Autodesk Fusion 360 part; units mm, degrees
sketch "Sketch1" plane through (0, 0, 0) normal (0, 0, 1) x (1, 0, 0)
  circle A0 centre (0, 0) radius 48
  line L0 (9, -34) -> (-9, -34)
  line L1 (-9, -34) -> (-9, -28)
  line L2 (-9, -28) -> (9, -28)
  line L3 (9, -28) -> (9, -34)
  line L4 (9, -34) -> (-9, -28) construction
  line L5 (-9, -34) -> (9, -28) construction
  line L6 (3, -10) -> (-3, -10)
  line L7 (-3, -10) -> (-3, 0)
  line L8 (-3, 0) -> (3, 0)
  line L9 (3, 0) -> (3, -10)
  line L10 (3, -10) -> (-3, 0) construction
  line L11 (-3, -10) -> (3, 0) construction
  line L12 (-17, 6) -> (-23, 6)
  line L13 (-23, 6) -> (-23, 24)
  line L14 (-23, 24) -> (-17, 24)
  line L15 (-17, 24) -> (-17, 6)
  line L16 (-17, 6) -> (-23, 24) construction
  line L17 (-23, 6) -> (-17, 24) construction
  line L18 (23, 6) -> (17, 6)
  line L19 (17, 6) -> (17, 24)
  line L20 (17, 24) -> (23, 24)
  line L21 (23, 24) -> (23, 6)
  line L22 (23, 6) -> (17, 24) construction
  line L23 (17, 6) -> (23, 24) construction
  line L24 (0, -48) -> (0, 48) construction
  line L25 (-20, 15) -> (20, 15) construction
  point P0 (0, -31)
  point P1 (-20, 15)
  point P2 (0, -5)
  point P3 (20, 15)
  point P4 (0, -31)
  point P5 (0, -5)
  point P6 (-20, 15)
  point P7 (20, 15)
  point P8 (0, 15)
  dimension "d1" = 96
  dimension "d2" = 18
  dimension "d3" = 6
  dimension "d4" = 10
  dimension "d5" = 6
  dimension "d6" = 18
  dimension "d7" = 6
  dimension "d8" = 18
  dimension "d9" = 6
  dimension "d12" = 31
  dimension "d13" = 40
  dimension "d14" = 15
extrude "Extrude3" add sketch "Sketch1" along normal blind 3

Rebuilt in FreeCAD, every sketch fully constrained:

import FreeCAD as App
import Part
import Sketcher
Q = App.Units.Quantity


def add_polygon(sketch, points):
    """Adds a closed chain of lines whose ends are joined by coincident constraints."""
    first, n = sketch.GeometryCount, len(points)
    for a, b in zip(points, points[1:] + points[:1]):
        sketch.addGeometry(Part.LineSegment(App.Vector(*a, 0), App.Vector(*b, 0)), False)
    for i in range(n):
        sketch.addConstraint(Sketcher.Constraint("Coincident", first + i, 2, first + (i + 1) % n, 1))

doc = App.newDocument("Part")
body = doc.addObject("PartDesign::Body", "Body")

sketch1 = body.newObject("Sketcher::SketchObject", "Sketch")
sketch1.AttachmentSupport = (doc.getObject("XY_Plane"), [""])
sketch1.MapMode = "FlatFace"
sketch1.addGeometry(Part.Circle(App.Vector(0, 0, 0), App.Vector(0, 0, 1), 48), False)
add_polygon(sketch1, [(9, -28), (9, -34), (-9, -34), (-9, -28)])
add_polygon(sketch1, [(3, 0), (3, -10), (-3, -10), (-3, 0)])
add_polygon(sketch1, [(-17, 24), (-17, 6), (-23, 6), (-23, 24)])
add_polygon(sketch1, [(23, 24), (23, 6), (17, 6), (17, 24)])
sketch1.addConstraint([
    Sketcher.Constraint("Vertical", 1),
    Sketcher.Constraint("Horizontal", 2),
    Sketcher.Constraint("Vertical", 3),
    Sketcher.Constraint("Horizontal", 4),
    Sketcher.Constraint("Vertical", 5),
    Sketcher.Constraint("Horizontal", 6),
    Sketcher.Constraint("Vertical", 7),
    Sketcher.Constraint("Horizontal", 8),
    Sketcher.Constraint("Vertical", 9),
    Sketcher.Constraint("Horizontal", 10),
    Sketcher.Constraint("Vertical", 11),
    Sketcher.Constraint("Horizontal", 12),
    Sketcher.Constraint("Vertical", 13),
    Sketcher.Constraint("Horizontal", 14),
    Sketcher.Constraint("Vertical", 15),
    Sketcher.Constraint("Horizontal", 16),
    Sketcher.Constraint("Coincident", 0, 3, -1, 1),
    Sketcher.Constraint("Symmetric", 7, 2, 8, 2, -1, 1),
    Sketcher.Constraint("Symmetric", 10, 2, 13, 2, -2),
    Sketcher.Constraint("Symmetric", 12, 2, 15, 2, -2),
    Sketcher.Constraint("Equal", 8, 10),
    Sketcher.Constraint("Equal", 16, 1),
    Sketcher.Constraint("Equal", 4, 9),
    Sketcher.Constraint("Diameter", 0, Q("96 mm")),
    Sketcher.Constraint("DistanceX", 2, 2, 2, 1, Q("18 mm")),
    Sketcher.Constraint("DistanceX", 6, 2, 6, 1, Q("6 mm")),
    Sketcher.Constraint("DistanceY", 5, 2, 5, 1, Q("10 mm")),
    Sketcher.Constraint("DistanceY", -1, 1, 9, 2, Q("6 mm")),
    Sketcher.Constraint("DistanceX", 5, 2, 4, 2, Q("6 mm")),
    Sketcher.Constraint("DistanceY", 4, 2, 5, 2, Q("18 mm")),
    Sketcher.Constraint("DistanceX", 9, 2, -1, 1, Q("17 mm")),
])
pad1 = body.newObject("PartDesign::Pad", "Pad")
pad1.Profile = sketch1
pad1.Length = 3

doc.recompute()
